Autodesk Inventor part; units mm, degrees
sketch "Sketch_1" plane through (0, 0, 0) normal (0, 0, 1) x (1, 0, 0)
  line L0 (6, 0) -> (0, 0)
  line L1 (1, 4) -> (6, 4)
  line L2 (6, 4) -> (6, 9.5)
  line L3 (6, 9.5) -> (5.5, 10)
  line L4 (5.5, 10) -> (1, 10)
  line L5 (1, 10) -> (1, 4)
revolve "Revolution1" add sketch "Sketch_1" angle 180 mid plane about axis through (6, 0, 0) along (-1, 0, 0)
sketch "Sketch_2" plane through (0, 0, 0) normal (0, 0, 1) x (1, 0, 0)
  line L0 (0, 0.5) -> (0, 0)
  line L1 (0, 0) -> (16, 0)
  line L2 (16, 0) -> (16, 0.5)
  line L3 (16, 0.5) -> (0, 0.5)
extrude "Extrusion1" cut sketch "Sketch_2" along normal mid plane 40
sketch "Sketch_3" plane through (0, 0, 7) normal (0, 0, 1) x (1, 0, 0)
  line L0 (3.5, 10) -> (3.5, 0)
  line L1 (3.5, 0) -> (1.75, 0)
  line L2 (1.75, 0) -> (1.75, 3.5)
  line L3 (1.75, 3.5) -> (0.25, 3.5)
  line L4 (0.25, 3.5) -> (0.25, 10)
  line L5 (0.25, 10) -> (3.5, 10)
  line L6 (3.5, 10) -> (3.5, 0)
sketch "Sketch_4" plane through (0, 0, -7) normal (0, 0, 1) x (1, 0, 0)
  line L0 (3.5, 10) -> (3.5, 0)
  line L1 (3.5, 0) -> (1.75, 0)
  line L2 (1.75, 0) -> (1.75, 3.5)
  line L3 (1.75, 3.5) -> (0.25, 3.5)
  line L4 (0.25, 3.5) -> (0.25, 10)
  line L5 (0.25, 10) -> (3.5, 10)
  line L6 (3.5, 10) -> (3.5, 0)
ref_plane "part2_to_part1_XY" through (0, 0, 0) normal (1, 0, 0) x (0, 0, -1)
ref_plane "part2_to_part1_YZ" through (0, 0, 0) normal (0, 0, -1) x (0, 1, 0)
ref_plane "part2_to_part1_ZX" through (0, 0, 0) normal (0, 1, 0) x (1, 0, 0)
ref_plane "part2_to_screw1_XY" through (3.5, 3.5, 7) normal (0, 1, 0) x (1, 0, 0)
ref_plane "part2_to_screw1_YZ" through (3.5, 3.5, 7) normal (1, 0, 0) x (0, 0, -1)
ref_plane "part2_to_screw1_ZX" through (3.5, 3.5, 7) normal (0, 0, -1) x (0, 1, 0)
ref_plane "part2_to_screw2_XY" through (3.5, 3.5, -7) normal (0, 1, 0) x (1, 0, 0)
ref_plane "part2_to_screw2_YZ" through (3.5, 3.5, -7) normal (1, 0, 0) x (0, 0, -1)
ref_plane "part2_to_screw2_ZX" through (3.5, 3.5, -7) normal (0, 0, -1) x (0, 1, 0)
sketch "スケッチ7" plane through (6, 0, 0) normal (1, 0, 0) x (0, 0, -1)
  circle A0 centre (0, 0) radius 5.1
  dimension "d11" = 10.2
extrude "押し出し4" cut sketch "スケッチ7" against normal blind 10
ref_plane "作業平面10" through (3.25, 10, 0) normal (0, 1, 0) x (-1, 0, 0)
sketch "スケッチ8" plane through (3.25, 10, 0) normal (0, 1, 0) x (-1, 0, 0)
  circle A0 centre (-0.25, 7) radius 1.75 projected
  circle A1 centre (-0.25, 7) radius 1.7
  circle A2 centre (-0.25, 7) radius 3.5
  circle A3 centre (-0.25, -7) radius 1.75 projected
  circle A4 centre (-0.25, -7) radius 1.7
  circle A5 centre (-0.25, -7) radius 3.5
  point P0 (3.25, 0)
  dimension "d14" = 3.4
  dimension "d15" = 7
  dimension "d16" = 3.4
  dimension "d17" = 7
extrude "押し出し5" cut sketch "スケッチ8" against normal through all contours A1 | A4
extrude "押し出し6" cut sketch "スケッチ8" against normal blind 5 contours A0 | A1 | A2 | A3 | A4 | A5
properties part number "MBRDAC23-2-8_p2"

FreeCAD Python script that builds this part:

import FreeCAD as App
import Part
import Sketcher
from FreeCAD import Vector
Q = App.Units.Quantity


def add_polygon(sketch, points):
    """Adds a closed chain of lines whose ends are joined by coincident constraints."""
    first, n = sketch.GeometryCount, len(points)
    for a, b in zip(points, points[1:] + points[:1]):
        sketch.addGeometry(Part.LineSegment(App.Vector(*a, 0), App.Vector(*b, 0)), False)
    for i in range(n):
        sketch.addConstraint(Sketcher.Constraint("Coincident", first + i, 2, first + (i + 1) % n, 1))

doc = App.newDocument("Part")
body = doc.addObject("PartDesign::Body", "Body")

# Sketch on XY plane
sketch1 = doc.addObject("Sketcher::SketchObject", "Sketch")
body.addObject(sketch1)
sketch1.AttachmentSupport = (doc.XY_Plane, [""])
sketch1.MapMode = "FlatFace"
add_polygon(sketch1, [(1, 10), (1, 4), (6, 4), (6, 9.5), (5.5, 10)])  # lines 0-4
sketch1.addConstraint(Sketcher.Constraint("Vertical", 0))
sketch1.addConstraint(Sketcher.Constraint("Horizontal", 1))
sketch1.addConstraint(Sketcher.Constraint("Vertical", 2))
sketch1.addConstraint(Sketcher.Constraint("Horizontal", 4))
sketch1.addConstraint(Sketcher.Constraint("DistanceX", 1, 1, 1, 2, 5.0))
sketch1.addConstraint(Sketcher.Constraint("DistanceY", 0, 2, 0, 1, 6.0))
sketch1.addConstraint(Sketcher.Constraint("Angle", 3, Q("135 deg")))
sketch1.addConstraint(Sketcher.Constraint("DistanceX", 4, 2, 4, 1, 4.5))
sketch1.addConstraint(Sketcher.Constraint("DistanceX", -1, 1, 0, 2, 1.0))
sketch1.addConstraint(Sketcher.Constraint("DistanceY", -1, 1, 0, 2, 4.0))
revolution = doc.addObject("PartDesign::Revolution", "Revolution")
body.addObject(revolution)
revolution.Profile = sketch1
revolution.ReferenceAxis = (sketch1, ["H_Axis"])
revolution.Angle = 180
revolution.Midplane = True

# Sketch on XY plane
sketch2 = doc.addObject("Sketcher::SketchObject", "Sketch001")
body.addObject(sketch2)
sketch2.AttachmentSupport = (doc.XY_Plane, [""])
sketch2.MapMode = "FlatFace"
add_polygon(sketch2, [(16, 0.5), (0, 0.5), (0, 0), (16, 0)])  # lines 0-3
sketch2.addConstraint(Sketcher.Constraint("Horizontal", 0))
sketch2.addConstraint(Sketcher.Constraint("Vertical", 1))
sketch2.addConstraint(Sketcher.Constraint("Horizontal", 2))
sketch2.addConstraint(Sketcher.Constraint("Vertical", 3))
sketch2.addConstraint(Sketcher.Constraint("Coincident", 1, 2, -1, 1))
sketch2.addConstraint(Sketcher.Constraint("DistanceX", 0, 2, 0, 1, 16.0))
sketch2.addConstraint(Sketcher.Constraint("DistanceY", 1, 2, 1, 1, 0.5))
pocket1 = doc.addObject("PartDesign::Pocket", "Pocket")
body.addObject(pocket1)
pocket1.Profile = sketch2
pocket1.Length = 40
pocket1.Midplane = True

# Sketch on YZ plane
sketch3 = doc.addObject("Sketcher::SketchObject", "Sketch002")
body.addObject(sketch3)
sketch3.AttachmentSupport = (doc.YZ_Plane, [""])
sketch3.MapMode = "FlatFace"
sketch3.AttachmentOffset = App.Placement(Vector(0, 0, 6), App.Rotation())
sketch3.addGeometry(Part.Circle(Vector(0, 0, 0), Vector(0, 0, 1), 5), False)
sketch3.addConstraint(Sketcher.Constraint("Coincident", 0, 3, -1, 1))
sketch3.addConstraint(Sketcher.Constraint("Diameter", 0, 10.2))
pocket2 = doc.addObject("PartDesign::Pocket", "Pocket001")
body.addObject(pocket2)
pocket2.Profile = sketch3
pocket2.Length = 10

# Sketch on XZ plane
sketch4 = doc.addObject("Sketcher::SketchObject", "Sketch003")
body.addObject(sketch4)
sketch4.AttachmentSupport = (doc.XZ_Plane, [""])
sketch4.MapMode = "FlatFace"
sketch4.AttachmentOffset = App.Placement(Vector(0, 0, -10), App.Rotation())
sketch4.addGeometry(Part.Circle(Vector(3.5, 7, 0), Vector(0, 0, 1), 1.7), False)
sketch4.addGeometry(Part.Circle(Vector(3.5, -7, 0), Vector(0, 0, 1), 1.7), False)
sketch4.addConstraint(Sketcher.Constraint("Equal", 0, 1))
sketch4.addConstraint(Sketcher.Constraint("Symmetric", 0, 3, 1, 3, -1))
sketch4.addConstraint(Sketcher.Constraint("Diameter", 0, 3.4))
sketch4.addConstraint(Sketcher.Constraint("DistanceY", -1, 1, 0, 3, 7.0))
sketch4.addConstraint(Sketcher.Constraint("DistanceX", -1, 1, 0, 3, 3.5))
pocket3 = doc.addObject("PartDesign::Pocket", "Pocket002")
body.addObject(pocket3)
pocket3.Profile = sketch4
pocket3.Type = "ThroughAll"
pocket3.Reversed = True

# Sketch on XZ plane
sketch5 = doc.addObject("Sketcher::SketchObject", "Sketch004")
body.addObject(sketch5)
sketch5.AttachmentSupport = (doc.XZ_Plane, [""])
sketch5.MapMode = "FlatFace"
sketch5.AttachmentOffset = App.Placement(Vector(0, 0, -10), App.Rotation())
sketch5.addGeometry(Part.Circle(Vector(3.5, 7, 0), Vector(0, 0, 1), 3.5), False)
sketch5.addGeometry(Part.Circle(Vector(3.5, -7, 0), Vector(0, 0, 1), 3.5), False)
sketch5.addConstraint(Sketcher.Constraint("Equal", 0, 1))
sketch5.addConstraint(Sketcher.Constraint("Symmetric", 0, 3, 1, 3, -1))
sketch5.addConstraint(Sketcher.Constraint("Diameter", 0, 7.0))
sketch5.addConstraint(Sketcher.Constraint("DistanceY", -1, 1, 0, 3, 7.0))
sketch5.addConstraint(Sketcher.Constraint("DistanceX", -1, 1, 0, 3, 3.5))
pocket4 = doc.addObject("PartDesign::Pocket", "Pocket003")
body.addObject(pocket4)
pocket4.Profile = sketch5
pocket4.Length = 5
pocket4.Reversed = True

doc.recompute()
